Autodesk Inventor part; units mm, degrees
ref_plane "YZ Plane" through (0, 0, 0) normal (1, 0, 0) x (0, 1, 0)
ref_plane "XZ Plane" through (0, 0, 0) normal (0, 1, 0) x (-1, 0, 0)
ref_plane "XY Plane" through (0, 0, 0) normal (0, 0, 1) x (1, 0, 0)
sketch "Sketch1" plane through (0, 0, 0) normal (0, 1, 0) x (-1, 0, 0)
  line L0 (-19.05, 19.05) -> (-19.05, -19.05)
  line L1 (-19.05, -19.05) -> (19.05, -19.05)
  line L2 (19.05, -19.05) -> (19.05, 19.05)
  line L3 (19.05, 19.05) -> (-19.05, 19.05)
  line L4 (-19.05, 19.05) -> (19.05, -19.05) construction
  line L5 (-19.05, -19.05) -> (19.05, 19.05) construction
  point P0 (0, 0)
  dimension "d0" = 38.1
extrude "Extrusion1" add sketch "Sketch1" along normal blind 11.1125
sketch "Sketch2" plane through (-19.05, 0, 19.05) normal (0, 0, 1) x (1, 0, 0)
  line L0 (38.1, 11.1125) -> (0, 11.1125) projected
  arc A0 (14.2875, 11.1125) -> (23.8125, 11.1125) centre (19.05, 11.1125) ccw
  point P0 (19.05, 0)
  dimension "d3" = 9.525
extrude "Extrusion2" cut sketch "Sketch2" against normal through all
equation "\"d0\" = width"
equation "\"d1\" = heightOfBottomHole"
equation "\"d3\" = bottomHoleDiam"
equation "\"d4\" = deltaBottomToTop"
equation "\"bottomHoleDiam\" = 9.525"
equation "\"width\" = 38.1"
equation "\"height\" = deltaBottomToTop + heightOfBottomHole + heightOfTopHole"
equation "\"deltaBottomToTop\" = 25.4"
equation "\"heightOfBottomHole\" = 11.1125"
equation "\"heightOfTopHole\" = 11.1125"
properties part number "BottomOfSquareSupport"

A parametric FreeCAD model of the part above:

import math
import FreeCAD as App
import Part
import Sketcher
Q = App.Units.Quantity

doc = App.newDocument("Part")
params = doc.addObject("Spreadsheet::Sheet", "Params")
for row, (alias, value) in enumerate([
    ("sketch1_width", "1.5 in"),
    ("pad1_length", "0.4375 in"),
    ("sketch2_radius", "0.1875 in"),
], start=1):
    params.set(f"A{row}", alias)
    params.set(f"B{row}", "=" + value)
    params.setAlias(f"B{row}", alias)

body = doc.addObject("PartDesign::Body", "Body")

sketch1 = body.newObject("Sketcher::SketchObject", "Sketch")
sketch1.AttachmentSupport = (doc.getObject("XZ_Plane"), [""])
sketch1.MapMode = "FlatFace"
sketch1.addGeometry([
    Part.LineSegment(App.Vector(-19, 19, 0), App.Vector(19, 19, 0)),
    Part.LineSegment(App.Vector(19, 19, 0), App.Vector(19, -19, 0)),
    Part.LineSegment(App.Vector(19, -19, 0), App.Vector(-19, -19, 0)),
    Part.LineSegment(App.Vector(-19, -19, 0), App.Vector(-19, 19, 0)),
], False)
sketch1.addConstraint([
    Sketcher.Constraint("Coincident", 0, 2, 1, 1),
    Sketcher.Constraint("Coincident", 1, 2, 2, 1),
    Sketcher.Constraint("Coincident", 2, 2, 3, 1),
    Sketcher.Constraint("Coincident", 3, 2, 0, 1),
    Sketcher.Constraint("Horizontal", 0),
    Sketcher.Constraint("Vertical", 1),
    Sketcher.Constraint("Horizontal", 2),
    Sketcher.Constraint("Vertical", 3),
    Sketcher.Constraint("Symmetric", 0, 2, 2, 2, -1, 1),
    Sketcher.Constraint("Equal", 2, 1),
    Sketcher.Constraint("DistanceX", 0, 1, 0, 2, Q("1.5 in")),
])
sketch1.setExpression("Constraints[10]", "Params.sketch1_width")
pad1 = body.newObject("PartDesign::Pad", "Pad")
pad1.Profile = sketch1
pad1.setExpression("Length", "Params.pad1_length")
pad1.Reversed = True

sketch2 = body.newObject("Sketcher::SketchObject", "Sketch001")
sketch2.AttachmentSupport = (doc.getObject("XY_Plane"), [""])
sketch2.MapMode = "FlatFace"
sketch2.AttachmentOffset = App.Placement(App.Vector(0, 0, 0.75 * 25.4), App.Rotation())
sketch2.addGeometry([
    Part.ArcOfCircle(Part.Circle(App.Vector(0, 11.1, 0), App.Vector(0, 0, 1), 4.8), math.radians(180), math.radians(360)),
    Part.LineSegment(App.Vector(4.8, 11.1, 0), App.Vector(-4.8, 11.1, 0)),
], False)
sketch2.addConstraint([
    Sketcher.Constraint("Coincident", 0, 1, 1, 2),
    Sketcher.Constraint("Coincident", 1, 1, 0, 2),
    Sketcher.Constraint("Horizontal", 1),
    Sketcher.Constraint("PointOnObject", 0, 3, -2),
    Sketcher.Constraint("Radius", 0, Q("0.1875 in")),
    Sketcher.Constraint("DistanceY", -1, 1, 0, 3, Q("0.4375 in")),
    Sketcher.Constraint("DistanceY", -1, 1, 0, 1, Q("0.4375 in")),
])
sketch2.setExpression("Constraints[4]", "Params.sketch2_radius")
pocket1 = body.newObject("PartDesign::Pocket", "Pocket")
pocket1.Profile = sketch2
pocket1.Type = "ThroughAll"

doc.recompute()
